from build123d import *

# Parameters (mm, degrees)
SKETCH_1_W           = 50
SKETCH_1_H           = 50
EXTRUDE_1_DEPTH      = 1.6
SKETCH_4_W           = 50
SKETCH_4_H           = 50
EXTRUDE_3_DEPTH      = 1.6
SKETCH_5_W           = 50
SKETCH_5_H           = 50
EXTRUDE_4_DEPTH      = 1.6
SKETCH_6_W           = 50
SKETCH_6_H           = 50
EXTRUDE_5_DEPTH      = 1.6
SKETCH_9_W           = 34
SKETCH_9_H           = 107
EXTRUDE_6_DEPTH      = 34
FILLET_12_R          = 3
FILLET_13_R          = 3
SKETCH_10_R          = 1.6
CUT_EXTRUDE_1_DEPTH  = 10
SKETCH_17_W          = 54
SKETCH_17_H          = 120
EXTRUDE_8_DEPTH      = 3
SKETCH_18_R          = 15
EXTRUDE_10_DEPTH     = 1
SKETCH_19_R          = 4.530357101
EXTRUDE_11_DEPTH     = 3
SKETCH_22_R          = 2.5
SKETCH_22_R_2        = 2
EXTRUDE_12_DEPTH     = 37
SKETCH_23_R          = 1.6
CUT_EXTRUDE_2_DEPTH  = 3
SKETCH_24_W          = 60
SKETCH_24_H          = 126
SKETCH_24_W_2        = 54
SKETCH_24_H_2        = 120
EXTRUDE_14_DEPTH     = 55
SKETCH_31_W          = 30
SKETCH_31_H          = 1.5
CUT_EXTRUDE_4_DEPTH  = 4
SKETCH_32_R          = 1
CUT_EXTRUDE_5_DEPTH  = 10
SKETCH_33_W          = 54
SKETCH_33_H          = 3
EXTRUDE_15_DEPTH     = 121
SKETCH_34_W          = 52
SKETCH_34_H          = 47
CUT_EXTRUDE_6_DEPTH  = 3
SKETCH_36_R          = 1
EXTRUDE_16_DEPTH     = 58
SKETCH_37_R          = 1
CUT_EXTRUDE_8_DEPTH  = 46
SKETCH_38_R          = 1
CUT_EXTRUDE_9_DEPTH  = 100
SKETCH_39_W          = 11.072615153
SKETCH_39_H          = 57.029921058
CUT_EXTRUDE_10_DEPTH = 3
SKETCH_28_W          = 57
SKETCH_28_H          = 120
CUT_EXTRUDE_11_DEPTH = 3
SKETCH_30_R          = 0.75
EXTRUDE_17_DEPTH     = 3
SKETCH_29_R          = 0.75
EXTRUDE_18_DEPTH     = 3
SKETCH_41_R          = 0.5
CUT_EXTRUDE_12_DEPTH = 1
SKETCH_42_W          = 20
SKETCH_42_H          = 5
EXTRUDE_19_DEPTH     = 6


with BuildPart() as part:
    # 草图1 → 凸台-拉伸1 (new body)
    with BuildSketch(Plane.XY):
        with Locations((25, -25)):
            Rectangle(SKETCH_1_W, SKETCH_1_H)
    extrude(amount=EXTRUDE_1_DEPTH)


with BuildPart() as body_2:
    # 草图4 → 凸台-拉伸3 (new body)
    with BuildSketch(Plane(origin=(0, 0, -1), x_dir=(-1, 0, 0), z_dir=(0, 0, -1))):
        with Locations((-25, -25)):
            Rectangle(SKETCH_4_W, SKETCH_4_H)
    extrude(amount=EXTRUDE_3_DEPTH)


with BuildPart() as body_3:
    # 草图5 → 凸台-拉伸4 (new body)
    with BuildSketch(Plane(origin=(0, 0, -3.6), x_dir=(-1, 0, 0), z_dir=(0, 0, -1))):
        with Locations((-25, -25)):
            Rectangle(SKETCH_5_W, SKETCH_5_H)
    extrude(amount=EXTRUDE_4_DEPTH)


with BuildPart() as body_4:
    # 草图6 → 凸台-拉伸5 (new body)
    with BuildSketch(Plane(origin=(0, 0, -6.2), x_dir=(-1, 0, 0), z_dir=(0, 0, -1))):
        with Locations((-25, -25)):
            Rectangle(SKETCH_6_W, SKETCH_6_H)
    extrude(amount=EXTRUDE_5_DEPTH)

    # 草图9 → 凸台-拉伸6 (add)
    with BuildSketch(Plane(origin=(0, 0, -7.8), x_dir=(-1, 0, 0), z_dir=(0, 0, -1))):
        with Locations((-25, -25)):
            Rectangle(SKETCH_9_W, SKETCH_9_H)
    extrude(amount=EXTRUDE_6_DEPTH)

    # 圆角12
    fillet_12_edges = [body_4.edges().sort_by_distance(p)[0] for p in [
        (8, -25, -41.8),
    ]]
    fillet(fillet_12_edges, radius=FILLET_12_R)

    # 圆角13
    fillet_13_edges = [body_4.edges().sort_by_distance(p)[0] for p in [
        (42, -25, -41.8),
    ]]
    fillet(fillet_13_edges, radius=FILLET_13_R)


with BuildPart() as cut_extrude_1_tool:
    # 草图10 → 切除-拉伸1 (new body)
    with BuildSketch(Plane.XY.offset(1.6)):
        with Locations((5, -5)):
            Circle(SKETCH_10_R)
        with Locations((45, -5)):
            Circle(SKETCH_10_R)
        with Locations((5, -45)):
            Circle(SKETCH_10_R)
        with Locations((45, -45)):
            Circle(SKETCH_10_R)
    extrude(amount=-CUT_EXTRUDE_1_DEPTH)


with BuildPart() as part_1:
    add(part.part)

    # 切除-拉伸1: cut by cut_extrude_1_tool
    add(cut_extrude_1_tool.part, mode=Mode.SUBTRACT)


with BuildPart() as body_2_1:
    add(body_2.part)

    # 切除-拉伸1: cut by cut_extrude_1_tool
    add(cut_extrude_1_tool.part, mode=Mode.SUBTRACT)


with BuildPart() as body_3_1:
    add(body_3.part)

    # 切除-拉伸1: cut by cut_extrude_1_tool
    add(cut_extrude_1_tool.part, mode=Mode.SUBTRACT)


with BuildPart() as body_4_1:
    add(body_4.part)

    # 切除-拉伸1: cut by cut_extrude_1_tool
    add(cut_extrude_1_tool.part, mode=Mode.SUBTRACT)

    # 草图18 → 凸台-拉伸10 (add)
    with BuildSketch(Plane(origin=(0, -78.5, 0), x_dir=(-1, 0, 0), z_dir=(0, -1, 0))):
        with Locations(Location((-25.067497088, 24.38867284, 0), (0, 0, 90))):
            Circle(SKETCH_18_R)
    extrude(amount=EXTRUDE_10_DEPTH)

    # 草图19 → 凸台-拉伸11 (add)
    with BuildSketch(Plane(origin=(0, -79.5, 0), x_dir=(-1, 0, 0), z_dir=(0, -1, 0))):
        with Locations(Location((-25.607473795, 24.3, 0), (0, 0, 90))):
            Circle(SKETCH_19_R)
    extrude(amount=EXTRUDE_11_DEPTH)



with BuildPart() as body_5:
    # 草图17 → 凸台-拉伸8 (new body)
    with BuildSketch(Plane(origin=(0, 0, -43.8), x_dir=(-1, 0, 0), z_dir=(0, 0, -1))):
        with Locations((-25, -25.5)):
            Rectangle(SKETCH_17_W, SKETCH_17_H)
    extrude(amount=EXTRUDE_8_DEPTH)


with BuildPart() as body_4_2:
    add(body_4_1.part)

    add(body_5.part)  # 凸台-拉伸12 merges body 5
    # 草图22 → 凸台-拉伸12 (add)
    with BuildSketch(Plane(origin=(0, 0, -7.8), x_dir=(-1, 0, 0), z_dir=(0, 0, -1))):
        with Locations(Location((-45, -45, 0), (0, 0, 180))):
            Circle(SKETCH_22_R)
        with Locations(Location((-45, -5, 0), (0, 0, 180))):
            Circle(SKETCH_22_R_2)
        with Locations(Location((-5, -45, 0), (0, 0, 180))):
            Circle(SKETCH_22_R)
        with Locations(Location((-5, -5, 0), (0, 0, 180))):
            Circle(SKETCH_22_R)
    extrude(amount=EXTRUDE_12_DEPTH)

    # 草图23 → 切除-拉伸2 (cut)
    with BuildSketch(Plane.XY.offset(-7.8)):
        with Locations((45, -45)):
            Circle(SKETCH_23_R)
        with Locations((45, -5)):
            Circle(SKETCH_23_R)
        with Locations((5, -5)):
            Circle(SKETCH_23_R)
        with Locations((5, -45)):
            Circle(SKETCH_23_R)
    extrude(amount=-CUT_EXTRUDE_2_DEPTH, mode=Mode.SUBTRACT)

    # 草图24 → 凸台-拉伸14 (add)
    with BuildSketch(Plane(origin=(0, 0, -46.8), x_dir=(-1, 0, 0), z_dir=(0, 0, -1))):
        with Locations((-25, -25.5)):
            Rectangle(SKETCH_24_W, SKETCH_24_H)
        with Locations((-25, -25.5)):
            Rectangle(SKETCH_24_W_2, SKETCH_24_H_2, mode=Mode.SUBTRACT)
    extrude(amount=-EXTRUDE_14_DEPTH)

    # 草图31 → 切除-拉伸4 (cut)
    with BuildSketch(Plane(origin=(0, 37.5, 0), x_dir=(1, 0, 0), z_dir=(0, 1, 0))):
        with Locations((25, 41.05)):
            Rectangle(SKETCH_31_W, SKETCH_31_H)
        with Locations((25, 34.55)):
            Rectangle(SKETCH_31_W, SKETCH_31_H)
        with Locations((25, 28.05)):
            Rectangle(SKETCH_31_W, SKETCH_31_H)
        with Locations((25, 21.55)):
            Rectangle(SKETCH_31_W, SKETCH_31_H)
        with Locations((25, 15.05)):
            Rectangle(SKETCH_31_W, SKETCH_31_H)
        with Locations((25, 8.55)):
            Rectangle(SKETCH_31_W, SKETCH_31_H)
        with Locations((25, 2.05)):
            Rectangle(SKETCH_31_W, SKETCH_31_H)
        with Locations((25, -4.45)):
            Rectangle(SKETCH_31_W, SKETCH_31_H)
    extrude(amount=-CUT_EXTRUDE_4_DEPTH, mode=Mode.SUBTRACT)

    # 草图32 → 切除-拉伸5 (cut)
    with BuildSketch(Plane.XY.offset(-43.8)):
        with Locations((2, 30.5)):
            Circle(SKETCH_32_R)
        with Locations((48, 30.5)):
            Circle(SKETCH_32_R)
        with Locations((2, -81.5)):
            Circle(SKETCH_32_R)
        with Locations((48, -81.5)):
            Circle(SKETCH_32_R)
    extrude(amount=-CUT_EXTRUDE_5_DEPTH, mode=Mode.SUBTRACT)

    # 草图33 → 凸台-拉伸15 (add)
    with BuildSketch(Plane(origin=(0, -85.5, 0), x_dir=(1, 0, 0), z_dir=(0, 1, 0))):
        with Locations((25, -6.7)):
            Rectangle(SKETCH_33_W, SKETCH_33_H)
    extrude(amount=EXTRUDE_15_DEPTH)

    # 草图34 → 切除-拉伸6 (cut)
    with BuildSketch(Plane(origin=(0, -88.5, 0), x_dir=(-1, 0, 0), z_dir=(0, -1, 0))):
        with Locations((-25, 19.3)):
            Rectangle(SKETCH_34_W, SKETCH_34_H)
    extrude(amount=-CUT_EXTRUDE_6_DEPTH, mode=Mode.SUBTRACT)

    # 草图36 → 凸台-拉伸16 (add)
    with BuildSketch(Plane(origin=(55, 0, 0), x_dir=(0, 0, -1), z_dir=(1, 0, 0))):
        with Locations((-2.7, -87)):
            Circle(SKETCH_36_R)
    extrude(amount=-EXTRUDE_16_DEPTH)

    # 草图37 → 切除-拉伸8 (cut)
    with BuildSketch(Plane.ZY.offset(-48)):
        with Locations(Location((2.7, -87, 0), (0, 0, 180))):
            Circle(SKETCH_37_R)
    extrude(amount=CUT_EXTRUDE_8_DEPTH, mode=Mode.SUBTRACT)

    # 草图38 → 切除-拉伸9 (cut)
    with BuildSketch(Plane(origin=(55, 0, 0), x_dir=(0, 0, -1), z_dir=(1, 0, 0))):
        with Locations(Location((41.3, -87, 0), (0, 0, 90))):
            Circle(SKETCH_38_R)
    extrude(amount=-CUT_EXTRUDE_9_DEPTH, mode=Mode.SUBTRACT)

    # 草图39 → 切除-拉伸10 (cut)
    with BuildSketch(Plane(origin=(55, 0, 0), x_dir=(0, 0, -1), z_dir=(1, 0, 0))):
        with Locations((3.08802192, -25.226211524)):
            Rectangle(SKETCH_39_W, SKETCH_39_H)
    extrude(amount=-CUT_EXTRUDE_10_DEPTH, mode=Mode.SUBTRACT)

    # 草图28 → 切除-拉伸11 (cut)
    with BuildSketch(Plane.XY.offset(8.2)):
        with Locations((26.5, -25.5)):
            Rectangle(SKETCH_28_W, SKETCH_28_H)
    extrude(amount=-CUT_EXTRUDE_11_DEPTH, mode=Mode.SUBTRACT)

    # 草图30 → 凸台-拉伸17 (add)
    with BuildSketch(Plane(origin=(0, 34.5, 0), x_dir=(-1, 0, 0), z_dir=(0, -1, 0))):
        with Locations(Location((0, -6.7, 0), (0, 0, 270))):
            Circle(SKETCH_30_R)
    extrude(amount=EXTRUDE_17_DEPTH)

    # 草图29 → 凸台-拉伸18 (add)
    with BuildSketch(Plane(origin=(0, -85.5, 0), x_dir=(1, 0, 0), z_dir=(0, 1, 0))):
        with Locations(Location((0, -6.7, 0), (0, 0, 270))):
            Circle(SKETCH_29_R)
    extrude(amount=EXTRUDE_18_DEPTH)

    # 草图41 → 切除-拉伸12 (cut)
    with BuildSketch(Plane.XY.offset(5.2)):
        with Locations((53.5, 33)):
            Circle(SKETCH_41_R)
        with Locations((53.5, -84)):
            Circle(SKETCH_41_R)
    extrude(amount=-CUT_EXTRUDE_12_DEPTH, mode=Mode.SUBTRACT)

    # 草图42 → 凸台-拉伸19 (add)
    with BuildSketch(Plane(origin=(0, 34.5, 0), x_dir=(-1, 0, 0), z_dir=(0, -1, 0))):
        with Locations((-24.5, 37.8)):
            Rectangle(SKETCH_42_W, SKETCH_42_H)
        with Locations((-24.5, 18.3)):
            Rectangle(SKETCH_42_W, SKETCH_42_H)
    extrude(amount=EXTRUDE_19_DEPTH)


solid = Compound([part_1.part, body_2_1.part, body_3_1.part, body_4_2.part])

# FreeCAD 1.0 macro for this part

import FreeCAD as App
import Part
import Sketcher

V = App.Vector
Q = App.Units.Quantity


def edges_at(feature, points):
    """Names of the edges that pass closest to the given points."""
    edges = feature.Shape.Edges
    near = lambda p: min(range(len(edges)), key=lambda i: edges[i].distToShape(Part.Vertex(*p))[0])
    return sorted({f"Edge{near(p) + 1}" for p in points})

doc = App.newDocument("Part")
body = doc.addObject("PartDesign::Body", "Body")

# Sketch on XY plane
sketch1 = body.newObject("Sketcher::SketchObject", "Sketch")
sketch1.AttachmentSupport = (doc.getObject("XY_Plane"), [""])
sketch1.MapMode = "FlatFace"
sketch1.addGeometry([
    Part.LineSegment(V(0, 0, 0), V(0, -50, 0)),
    Part.LineSegment(V(0, -50, 0), V(50, -50, 0)),
    Part.LineSegment(V(50, -50, 0), V(50, 0, 0)),
    Part.LineSegment(V(50, 0, 0), V(0, 0, 0)),
], False)
sketch1.addConstraint([
    Sketcher.Constraint("Coincident", 0, 2, 1, 1),
    Sketcher.Constraint("Coincident", 1, 2, 2, 1),
    Sketcher.Constraint("Coincident", 2, 2, 3, 1),
    Sketcher.Constraint("Coincident", 3, 2, 0, 1),
    Sketcher.Constraint("Vertical", 0),
    Sketcher.Constraint("Horizontal", 1),
    Sketcher.Constraint("Vertical", 2),
    Sketcher.Constraint("Horizontal", 3),
    Sketcher.Constraint("Coincident", 3, 2, -1, 1),
    Sketcher.Constraint("Equal", 3, 0),
    Sketcher.Constraint("DistanceX", 1, 1, 1, 2, Q("50 mm")),
])
pad1 = body.newObject("PartDesign::Pad", "Pad")
pad1.Profile = sketch1
pad1.Length = 1.6
body2 = doc.addObject("PartDesign::Body", "Body001")

# Sketch on XY plane
sketch2 = body2.newObject("Sketcher::SketchObject", "Sketch001")
sketch2.AttachmentSupport = (doc.getObject("XY_Plane001"), [""])
sketch2.MapMode = "FlatFace"
sketch2.AttachmentOffset = App.Placement(V(0, 0, -1), App.Rotation())
sketch2.addGeometry([
    Part.LineSegment(V(50, 0, 0), V(50, -50, 0)),
    Part.LineSegment(V(50, -50, 0), V(0, -50, 0)),
    Part.LineSegment(V(0, -50, 0), V(0, 0, 0)),
    Part.LineSegment(V(0, 0, 0), V(50, 0, 0)),
], False)
sketch2.addConstraint([
    Sketcher.Constraint("Coincident", 0, 2, 1, 1),
    Sketcher.Constraint("Coincident", 1, 2, 2, 1),
    Sketcher.Constraint("Coincident", 2, 2, 3, 1),
    Sketcher.Constraint("Coincident", 3, 2, 0, 1),
    Sketcher.Constraint("Vertical", 0),
    Sketcher.Constraint("Horizontal", 1),
    Sketcher.Constraint("Vertical", 2),
    Sketcher.Constraint("Horizontal", 3),
    Sketcher.Constraint("Coincident", 2, 2, -1, 1),
    Sketcher.Constraint("Equal", 3, 0),
    Sketcher.Constraint("DistanceX", 1, 2, 1, 1, Q("50 mm")),
])
pad2 = body2.newObject("PartDesign::Pad", "Pad001")
pad2.Profile = sketch2
pad2.Length = 1.6
pad2.Reversed = True
body3 = doc.addObject("PartDesign::Body", "Body002")

# Sketch on XY plane
sketch3 = body3.newObject("Sketcher::SketchObject", "Sketch002")
sketch3.AttachmentSupport = (doc.getObject("XY_Plane002"), [""])
sketch3.MapMode = "FlatFace"
sketch3.AttachmentOffset = App.Placement(V(0, 0, -3.6), App.Rotation())
sketch3.addGeometry([
    Part.LineSegment(V(50, 0, 0), V(50, -50, 0)),
    Part.LineSegment(V(50, -50, 0), V(0, -50, 0)),
    Part.LineSegment(V(0, -50, 0), V(0, 0, 0)),
    Part.LineSegment(V(0, 0, 0), V(50, 0, 0)),
], False)
sketch3.addConstraint([
    Sketcher.Constraint("Coincident", 0, 2, 1, 1),
    Sketcher.Constraint("Coincident", 1, 2, 2, 1),
    Sketcher.Constraint("Coincident", 2, 2, 3, 1),
    Sketcher.Constraint("Coincident", 3, 2, 0, 1),
    Sketcher.Constraint("Vertical", 0),
    Sketcher.Constraint("Horizontal", 1),
    Sketcher.Constraint("Vertical", 2),
    Sketcher.Constraint("Horizontal", 3),
    Sketcher.Constraint("Coincident", 2, 2, -1, 1),
    Sketcher.Constraint("Equal", 3, 0),
    Sketcher.Constraint("DistanceX", 1, 2, 1, 1, Q("50 mm")),
])
pad3 = body3.newObject("PartDesign::Pad", "Pad002")
pad3.Profile = sketch3
pad3.Length = 1.6
pad3.Reversed = True
body4 = doc.addObject("PartDesign::Body", "Body003")

# Sketch on XY plane
sketch4 = body4.newObject("Sketcher::SketchObject", "Sketch003")
sketch4.AttachmentSupport = (doc.getObject("XY_Plane003"), [""])
sketch4.MapMode = "FlatFace"
sketch4.AttachmentOffset = App.Placement(V(0, 0, -6.2), App.Rotation())
sketch4.addGeometry([
    Part.LineSegment(V(50, 0, 0), V(50, -50, 0)),
    Part.LineSegment(V(50, -50, 0), V(0, -50, 0)),
    Part.LineSegment(V(0, -50, 0), V(0, 0, 0)),
    Part.LineSegment(V(0, 0, 0), V(50, 0, 0)),
], False)
sketch4.addConstraint([
    Sketcher.Constraint("Coincident", 0, 2, 1, 1),
    Sketcher.Constraint("Coincident", 1, 2, 2, 1),
    Sketcher.Constraint("Coincident", 2, 2, 3, 1),
    Sketcher.Constraint("Coincident", 3, 2, 0, 1),
    Sketcher.Constraint("Vertical", 0),
    Sketcher.Constraint("Horizontal", 1),
    Sketcher.Constraint("Vertical", 2),
    Sketcher.Constraint("Horizontal", 3),
    Sketcher.Constraint("Coincident", 2, 2, -1, 1),
    Sketcher.Constraint("Equal", 3, 0),
    Sketcher.Constraint("DistanceX", 1, 2, 1, 1, Q("50 mm")),
])
pad4 = body4.newObject("PartDesign::Pad", "Pad003")
pad4.Profile = sketch4
pad4.Length = 1.6
pad4.Reversed = True

# Sketch on XY plane
sketch5 = body4.newObject("Sketcher::SketchObject", "Sketch004")
sketch5.AttachmentSupport = (doc.getObject("XY_Plane003"), [""])
sketch5.MapMode = "FlatFace"
sketch5.AttachmentOffset = App.Placement(V(0, 0, -7.8), App.Rotation())
sketch5.addGeometry([
    Part.LineSegment(V(42, 28, 0), V(42, -78, 0)),
    Part.LineSegment(V(42, -78, 0), V(8, -78, 0)),
    Part.LineSegment(V(8, -78, 0), V(8, 28, 0)),
    Part.LineSegment(V(8, 28, 0), V(42, 28, 0)),
], False)
sketch5.addConstraint([
    Sketcher.Constraint("Coincident", 0, 2, 1, 1),
    Sketcher.Constraint("Coincident", 1, 2, 2, 1),
    Sketcher.Constraint("Coincident", 2, 2, 3, 1),
    Sketcher.Constraint("Coincident", 3, 2, 0, 1),
    Sketcher.Constraint("Vertical", 0),
    Sketcher.Constraint("Horizontal", 1),
    Sketcher.Constraint("Vertical", 2),
    Sketcher.Constraint("Horizontal", 3),
    Sketcher.Constraint("DistanceX", 1, 2, 1, 1, Q("34 mm")),
    Sketcher.Constraint("DistanceY", 0, 2, 0, 1, Q("107 mm")),
    Sketcher.Constraint("DistanceX", -1, 1, 0, 2, Q("42 mm")),
    Sketcher.Constraint("DistanceY", 0, 2, -1, 1, Q("78.5 mm")),
])
pad5 = body4.newObject("PartDesign::Pad", "Pad004")
pad5.Profile = sketch5
pad5.Length = 34
pad5.Reversed = True
doc.recompute()

fillet = body4.newObject("PartDesign::Fillet", "Fillet")
fillet.Base = (pad5, edges_at(pad5, [(8, -25, -41.8)]))
fillet.Radius = 3
doc.recompute()

fillet2 = body4.newObject("PartDesign::Fillet", "Fillet001")
fillet2.Base = (fillet, edges_at(fillet, [(42, -25, -41.8)]))
fillet2.Radius = 3
body5 = doc.addObject("PartDesign::Body", "Body004")
body5.AllowCompound = True

# Sketch on XY plane
sketch6 = body5.newObject("Sketcher::SketchObject", "Sketch005")
sketch6.AttachmentSupport = (doc.getObject("XY_Plane004"), [""])
sketch6.MapMode = "FlatFace"
sketch6.AttachmentOffset = App.Placement(V(0, 0, 1.6), App.Rotation())
sketch6.addGeometry([
    Part.Circle(V(5, -5, 0), V(0, 0, 1), 1.6),
    Part.Circle(V(45, -5, 0), V(0, 0, 1), 1.6),
    Part.Circle(V(5, -45, 0), V(0, 0, 1), 1.6),
    Part.Circle(V(45, -45, 0), V(0, 0, 1), 1.6),
], False)
sketch6.addConstraint([
    Sketcher.Constraint("Equal", 0, 1),
    Sketcher.Constraint("Equal", 1, 2),
    Sketcher.Constraint("Equal", 2, 3),
    Sketcher.Constraint("Horizontal", 0, 3, 1, 3),
    Sketcher.Constraint("Horizontal", 2, 3, 3, 3),
    Sketcher.Constraint("Vertical", 0, 3, 2, 3),
    Sketcher.Constraint("Vertical", 1, 3, 3, 3),
    Sketcher.Constraint("Diameter", 0, Q("3.2 mm")),
    Sketcher.Constraint("DistanceX", -1, 1, 0, 3, Q("5 mm")),
    Sketcher.Constraint("DistanceY", 0, 3, -1, 1, Q("5 mm")),
    Sketcher.Constraint("DistanceX", -1, 1, 1, 3, Q("45 mm")),
    Sketcher.Constraint("DistanceY", 2, 3, -1, 1, Q("45 mm")),
])
pad6 = body5.newObject("PartDesign::Pad", "Pad005")
pad6.Profile = sketch6
pad6.Length = 10
pad6.Reversed = True
doc.recompute()

body6 = doc.addObject("PartDesign::Body", "Body005")
body6.BaseFeature = body5
boolean = body.newObject("PartDesign::Boolean", "Boolean")
boolean.Type = "Cut"
boolean.addObjects([body6])
doc.recompute()

body7 = doc.addObject("PartDesign::Body", "Body006")
body7.BaseFeature = body5
boolean2 = body2.newObject("PartDesign::Boolean", "Boolean001")
boolean2.Type = "Cut"
boolean2.addObjects([body7])
doc.recompute()

body8 = doc.addObject("PartDesign::Body", "Body007")
body8.BaseFeature = body5
boolean3 = body3.newObject("PartDesign::Boolean", "Boolean002")
boolean3.Type = "Cut"
boolean3.addObjects([body8])
doc.recompute()

boolean4 = body4.newObject("PartDesign::Boolean", "Boolean003")
boolean4.Type = "Cut"
boolean4.addObjects([body5])

# Sketch on XZ plane
sketch7 = body4.newObject("Sketcher::SketchObject", "Sketch006")
sketch7.AttachmentSupport = (doc.getObject("XZ_Plane003"), [""])
sketch7.MapMode = "FlatFace"
sketch7.AttachmentOffset = App.Placement(V(0, 0, 78.5), App.Rotation())
sketch7.addGeometry(Part.Circle(V(25, -24, 0), V(0, 0, 1), 15), False)
sketch7.addConstraint([
    Sketcher.Constraint("Diameter", 0, Q("30 mm")),
    Sketcher.Constraint("DistanceX", -1, 1, 0, 3, Q("25.067497 mm")),
    Sketcher.Constraint("DistanceY", 0, 3, -1, 1, Q("24.388673 mm")),
])
pad7 = body4.newObject("PartDesign::Pad", "Pad006")
pad7.Profile = sketch7
pad7.Length = 1

# Sketch on XZ plane
sketch8 = body4.newObject("Sketcher::SketchObject", "Sketch007")
sketch8.AttachmentSupport = (doc.getObject("XZ_Plane003"), [""])
sketch8.MapMode = "FlatFace"
sketch8.AttachmentOffset = App.Placement(V(0, 0, 79.5), App.Rotation())
sketch8.addGeometry(Part.Circle(V(25.6, -24.3, 0), V(0, 0, 1), 4.5), False)
sketch8.addConstraint([
    Sketcher.Constraint("DistanceY", 0, 3, -1, 1, Q("24.3 mm")),
    Sketcher.Constraint("Diameter", 0, Q("9.060714 mm")),
    Sketcher.Constraint("DistanceX", -1, 1, 0, 3, Q("25.607474 mm")),
])
pad8 = body4.newObject("PartDesign::Pad", "Pad007")
pad8.Profile = sketch8
pad8.Length = 3
body9 = doc.addObject("PartDesign::Body", "Body008")

# Sketch on XY plane
sketch9 = body9.newObject("Sketcher::SketchObject", "Sketch008")
sketch9.AttachmentSupport = (doc.getObject("XY_Plane008"), [""])
sketch9.MapMode = "FlatFace"
sketch9.AttachmentOffset = App.Placement(V(0, 0, -43.8), App.Rotation())
sketch9.addGeometry([
    Part.LineSegment(V(52, 34, 0), V(52, -86, 0)),
    Part.LineSegment(V(52, -86, 0), V(-2, -86, 0)),
    Part.LineSegment(V(-2, -86, 0), V(-2, 34, 0)),
    Part.LineSegment(V(-2, 34, 0), V(52, 34, 0)),
], False)
sketch9.addConstraint([
    Sketcher.Constraint("Coincident", 0, 2, 1, 1),
    Sketcher.Constraint("Coincident", 1, 2, 2, 1),
    Sketcher.Constraint("Coincident", 2, 2, 3, 1),
    Sketcher.Constraint("Coincident", 3, 2, 0, 1),
    Sketcher.Constraint("Vertical", 0),
    Sketcher.Constraint("Horizontal", 1),
    Sketcher.Constraint("Vertical", 2),
    Sketcher.Constraint("Horizontal", 3),
    Sketcher.Constraint("DistanceX", 1, 2, 1, 1, Q("54 mm")),
    Sketcher.Constraint("DistanceY", 0, 2, 0, 1, Q("120 mm")),
    Sketcher.Constraint("DistanceX", -1, 1, 0, 2, Q("52 mm")),
    Sketcher.Constraint("DistanceY", 0, 2, -1, 1, Q("85.5 mm")),
])
pad9 = body9.newObject("PartDesign::Pad", "Pad008")
pad9.Profile = sketch9
pad9.Length = 3
pad9.Reversed = True
body4.AllowCompound = True
doc.recompute()

boolean5 = body4.newObject("PartDesign::Boolean", "Boolean004")
boolean5.Type = "Fuse"
boolean5.addObjects([body9])

# Sketch on XY plane
sketch10 = body4.newObject("Sketcher::SketchObject", "Sketch009")
sketch10.AttachmentSupport = (doc.getObject("XY_Plane003"), [""])
sketch10.MapMode = "FlatFace"
sketch10.AttachmentOffset = App.Placement(V(0, 0, -7.8), App.Rotation())
sketch10.addGeometry([
    Part.Circle(V(45, -45, 0), V(0, 0, 1), 2.5),
    Part.Circle(V(45, -5, 0), V(0, 0, 1), 2),
    Part.Circle(V(5, -45, 0), V(0, 0, 1), 2.5),
    Part.Circle(V(5, -5, 0), V(0, 0, 1), 2.5),
], False)
sketch10.addConstraint([
    Sketcher.Constraint("Equal", 0, 2),
    Sketcher.Constraint("Equal", 2, 3),
    Sketcher.Constraint("Horizontal", 0, 3, 2, 3),
    Sketcher.Constraint("Horizontal", 1, 3, 3, 3),
    Sketcher.Constraint("Vertical", 0, 3, 1, 3),
    Sketcher.Constraint("Vertical", 2, 3, 3, 3),
    Sketcher.Constraint("Diameter", 0, Q("5 mm")),
    Sketcher.Constraint("Diameter", 1, Q("4 mm")),
    Sketcher.Constraint("DistanceX", -1, 1, 0, 3, Q("45 mm")),
    Sketcher.Constraint("DistanceY", 0, 3, -1, 1, Q("45 mm")),
    Sketcher.Constraint("DistanceY", 1, 3, -1, 1, Q("5 mm")),
    Sketcher.Constraint("DistanceX", -1, 1, 2, 3, Q("5 mm")),
])
pad10 = body4.newObject("PartDesign::Pad", "Pad009")
pad10.Profile = sketch10
pad10.Length = 37
pad10.Reversed = True

# Sketch on XY plane
sketch11 = body4.newObject("Sketcher::SketchObject", "Sketch010")
sketch11.AttachmentSupport = (doc.getObject("XY_Plane003"), [""])
sketch11.MapMode = "FlatFace"
sketch11.AttachmentOffset = App.Placement(V(0, 0, -7.8), App.Rotation())
sketch11.addGeometry([
    Part.Circle(V(45, -45, 0), V(0, 0, 1), 1.6),
    Part.Circle(V(45, -5, 0), V(0, 0, 1), 1.6),
    Part.Circle(V(5, -5, 0), V(0, 0, 1), 1.6),
    Part.Circle(V(5, -45, 0), V(0, 0, 1), 1.6),
], False)
sketch11.addConstraint([
    Sketcher.Constraint("Equal", 0, 1),
    Sketcher.Constraint("Equal", 1, 2),
    Sketcher.Constraint("Equal", 2, 3),
    Sketcher.Constraint("Horizontal", 1, 3, 2, 3),
    Sketcher.Constraint("Horizontal", 0, 3, 3, 3),
    Sketcher.Constraint("Vertical", 0, 3, 1, 3),
    Sketcher.Constraint("Vertical", 2, 3, 3, 3),
    Sketcher.Constraint("Diameter", 0, Q("3.2 mm")),
    Sketcher.Constraint("DistanceX", -1, 1, 0, 3, Q("45 mm")),
    Sketcher.Constraint("DistanceY", 0, 3, -1, 1, Q("45 mm")),
    Sketcher.Constraint("DistanceY", 1, 3, -1, 1, Q("5 mm")),
    Sketcher.Constraint("DistanceX", -1, 1, 2, 3, Q("5 mm")),
])
pocket1 = body4.newObject("PartDesign::Pocket", "Pocket")
pocket1.Profile = sketch11
pocket1.Length = 3

# Sketch on XY plane
sketch12 = body4.newObject("Sketcher::SketchObject", "Sketch011")
sketch12.AttachmentSupport = (doc.getObject("XY_Plane003"), [""])
sketch12.MapMode = "FlatFace"
sketch12.AttachmentOffset = App.Placement(V(0, 0, -46.8), App.Rotation())
sketch12.addGeometry([
    Part.LineSegment(V(55, 38, 0), V(55, -88, 0)),  # 0
    Part.LineSegment(V(55, -88, 0), V(-5, -88, 0)),  # 1
    Part.LineSegment(V(-5, -88, 0), V(-5, 38, 0)),  # 2
    Part.LineSegment(V(-5, 38, 0), V(55, 38, 0)),  # 3
    Part.LineSegment(V(-2, -86, 0), V(52, -86, 0)),  # 4
    Part.LineSegment(V(52, -86, 0), V(52, 34, 0)),  # 5
    Part.LineSegment(V(52, 34, 0), V(-2, 34, 0)),  # 6
    Part.LineSegment(V(-2, 34, 0), V(-2, -86, 0)),  # 7
], False)
sketch12.addConstraint([
    Sketcher.Constraint("Coincident", 0, 2, 1, 1),
    Sketcher.Constraint("Coincident", 1, 2, 2, 1),
    Sketcher.Constraint("Coincident", 2, 2, 3, 1),
    Sketcher.Constraint("Coincident", 3, 2, 0, 1),
    Sketcher.Constraint("Coincident", 4, 2, 5, 1),
    Sketcher.Constraint("Coincident", 5, 2, 6, 1),
    Sketcher.Constraint("Coincident", 6, 2, 7, 1),
    Sketcher.Constraint("Coincident", 7, 2, 4, 1),
    Sketcher.Constraint("Vertical", 0),
    Sketcher.Constraint("Horizontal", 1),
    Sketcher.Constraint("Vertical", 2),
    Sketcher.Constraint("Horizontal", 3),
    Sketcher.Constraint("Horizontal", 4),
    Sketcher.Constraint("Vertical", 5),
    Sketcher.Constraint("Horizontal", 6),
    Sketcher.Constraint("Vertical", 7),
    Sketcher.Constraint("DistanceX", 1, 2, 1, 1, Q("60 mm")),
    Sketcher.Constraint("DistanceX", 4, 1, 4, 2, Q("54 mm")),
    Sketcher.Constraint("DistanceY", 0, 2, 0, 1, Q("126 mm")),
    Sketcher.Constraint("DistanceY", 5, 1, 5, 2, Q("120 mm")),
    Sketcher.Constraint("DistanceX", -1, 1, 0, 2, Q("55 mm")),
    Sketcher.Constraint("DistanceX", -1, 1, 4, 2, Q("52 mm")),
    Sketcher.Constraint("DistanceY", 0, 2, 4, 2, Q("3 mm")),
    Sketcher.Constraint("DistanceY", 0, 2, -1, 1, Q("88.5 mm")),
])
pad11 = body4.newObject("PartDesign::Pad", "Pad010")
pad11.Profile = sketch12
pad11.Length = 55

# Sketch on XZ plane
sketch13 = body4.newObject("Sketcher::SketchObject", "Sketch012")
sketch13.AttachmentSupport = (doc.getObject("XZ_Plane003"), [""])
sketch13.MapMode = "FlatFace"
sketch13.AttachmentOffset = App.Placement(V(0, 0, -37.5), App.Rotation())
sketch13.addGeometry([
    Part.LineSegment(V(10, -41.8, 0), V(10, -40.3, 0)),  # 0
    Part.LineSegment(V(10, -40.3, 0), V(40, -40.3, 0)),  # 1
    Part.LineSegment(V(40, -40.3, 0), V(40, -41.8, 0)),  # 2
    Part.LineSegment(V(40, -41.8, 0), V(10, -41.8, 0)),  # 3
    Part.LineSegment(V(10, -35.3, 0), V(10, -33.8, 0)),  # 4
    Part.LineSegment(V(10, -33.8, 0), V(40, -33.8, 0)),  # 5
    Part.LineSegment(V(40, -33.8, 0), V(40, -35.3, 0)),  # 6
    Part.LineSegment(V(40, -35.3, 0), V(10, -35.3, 0)),  # 7
    Part.LineSegment(V(10, -28.8, 0), V(10, -27.3, 0)),  # 8
    Part.LineSegment(V(10, -27.3, 0), V(40, -27.3, 0)),  # 9
    Part.LineSegment(V(40, -27.3, 0), V(40, -28.8, 0)),  # 10
    Part.LineSegment(V(40, -28.8, 0), V(10, -28.8, 0)),  # 11
    Part.LineSegment(V(10, -22.3, 0), V(10, -20.8, 0)),  # 12
    Part.LineSegment(V(10, -20.8, 0), V(40, -20.8, 0)),  # 13
    Part.LineSegment(V(40, -20.8, 0), V(40, -22.3, 0)),  # 14
    Part.LineSegment(V(40, -22.3, 0), V(10, -22.3, 0)),  # 15
    Part.LineSegment(V(10, -15.8, 0), V(10, -14.3, 0)),  # 16
    Part.LineSegment(V(10, -14.3, 0), V(40, -14.3, 0)),  # 17
    Part.LineSegment(V(40, -14.3, 0), V(40, -15.8, 0)),  # 18
    Part.LineSegment(V(40, -15.8, 0), V(10, -15.8, 0)),  # 19
    Part.LineSegment(V(10, -9.3, 0), V(10, -7.8, 0)),  # 20
    Part.LineSegment(V(10, -7.8, 0), V(40, -7.8, 0)),  # 21
    Part.LineSegment(V(40, -7.8, 0), V(40, -9.3, 0)),  # 22
    Part.LineSegment(V(40, -9.3, 0), V(10, -9.3, 0)),  # 23
    Part.LineSegment(V(10, -2.8, 0), V(10, -1.3, 0)),  # 24
    Part.LineSegment(V(10, -1.3, 0), V(40, -1.3, 0)),  # 25
    Part.LineSegment(V(40, -1.3, 0), V(40, -2.8, 0)),  # 26
    Part.LineSegment(V(40, -2.8, 0), V(10, -2.8, 0)),  # 27
    Part.LineSegment(V(10, 3.7, 0), V(10, 5.2, 0)),  # 28
    Part.LineSegment(V(10, 5.2, 0), V(40, 5.2, 0)),  # 29
    Part.LineSegment(V(40, 5.2, 0), V(40, 3.7, 0)),  # 30
    Part.LineSegment(V(40, 3.7, 0), V(10, 3.7, 0)),  # 31
], False)
sketch13.addConstraint([
    Sketcher.Constraint("Coincident", 0, 2, 1, 1),
    Sketcher.Constraint("Coincident", 1, 2, 2, 1),
    Sketcher.Constraint("Coincident", 2, 2, 3, 1),
    Sketcher.Constraint("Coincident", 3, 2, 0, 1),
    Sketcher.Constraint("Coincident", 4, 2, 5, 1),
    Sketcher.Constraint("Coincident", 5, 2, 6, 1),
    Sketcher.Constraint("Coincident", 6, 2, 7, 1),
    Sketcher.Constraint("Coincident", 7, 2, 4, 1),
    Sketcher.Constraint("Coincident", 8, 2, 9, 1),
    Sketcher.Constraint("Coincident", 9, 2, 10, 1),
    Sketcher.Constraint("Coincident", 10, 2, 11, 1),
    Sketcher.Constraint("Coincident", 11, 2, 8, 1),
    Sketcher.Constraint("Coincident", 12, 2, 13, 1),
    Sketcher.Constraint("Coincident", 13, 2, 14, 1),
    Sketcher.Constraint("Coincident", 14, 2, 15, 1),
    Sketcher.Constraint("Coincident", 15, 2, 12, 1),
    Sketcher.Constraint("Coincident", 16, 2, 17, 1),
    Sketcher.Constraint("Coincident", 17, 2, 18, 1),
    Sketcher.Constraint("Coincident", 18, 2, 19, 1),
    Sketcher.Constraint("Coincident", 19, 2, 16, 1),
    Sketcher.Constraint("Coincident", 20, 2, 21, 1),
    Sketcher.Constraint("Coincident", 21, 2, 22, 1),
    Sketcher.Constraint("Coincident", 22, 2, 23, 1),
    Sketcher.Constraint("Coincident", 23, 2, 20, 1),
    Sketcher.Constraint("Coincident", 24, 2, 25, 1),
    Sketcher.Constraint("Coincident", 25, 2, 26, 1),
    Sketcher.Constraint("Coincident", 26, 2, 27, 1),
    Sketcher.Constraint("Coincident", 27, 2, 24, 1),
    Sketcher.Constraint("Coincident", 28, 2, 29, 1),
    Sketcher.Constraint("Coincident", 29, 2, 30, 1),
    Sketcher.Constraint("Coincident", 30, 2, 31, 1),
    Sketcher.Constraint("Coincident", 31, 2, 28, 1),
    Sketcher.Constraint("Vertical", 0),
    Sketcher.Constraint("Horizontal", 1),
    Sketcher.Constraint("Vertical", 2),
    Sketcher.Constraint("Horizontal", 3),
    Sketcher.Constraint("Vertical", 4),
    Sketcher.Constraint("Horizontal", 5),
    Sketcher.Constraint("Vertical", 6),
    Sketcher.Constraint("Horizontal", 7),
    Sketcher.Constraint("Vertical", 8),
    Sketcher.Constraint("Horizontal", 9),
    Sketcher.Constraint("Vertical", 10),
    Sketcher.Constraint("Horizontal", 11),
    Sketcher.Constraint("Vertical", 12),
    Sketcher.Constraint("Horizontal", 13),
    Sketcher.Constraint("Vertical", 14),
    Sketcher.Constraint("Horizontal", 15),
    Sketcher.Constraint("Vertical", 16),
    Sketcher.Constraint("Horizontal", 17),
    Sketcher.Constraint("Vertical", 18),
    Sketcher.Constraint("Horizontal", 19),
    Sketcher.Constraint("Vertical", 20),
    Sketcher.Constraint("Horizontal", 21),
    Sketcher.Constraint("Vertical", 22),
    Sketcher.Constraint("Horizontal", 23),
    Sketcher.Constraint("Vertical", 24),
    Sketcher.Constraint("Horizontal", 25),
    Sketcher.Constraint("Vertical", 26),
    Sketcher.Constraint("Horizontal", 27),
    Sketcher.Constraint("Vertical", 28),
    Sketcher.Constraint("Horizontal", 29),
    Sketcher.Constraint("Vertical", 30),
    Sketcher.Constraint("Horizontal", 31),
    Sketcher.Constraint("Vertical", 3, 2, 4, 2),
    Sketcher.Constraint("Vertical", 2, 2, 5, 2),
    Sketcher.Constraint("Vertical", 7, 2, 8, 2),
    Sketcher.Constraint("Vertical", 6, 2, 9, 2),
    Sketcher.Constraint("Vertical", 11, 2, 12, 2),
    Sketcher.Constraint("Vertical", 10, 2, 13, 2),
    Sketcher.Constraint("Vertical", 15, 2, 16, 2),
    Sketcher.Constraint("Vertical", 14, 2, 17, 2),
    Sketcher.Constraint("Vertical", 19, 2, 20, 2),
    Sketcher.Constraint("Vertical", 18, 2, 21, 2),
    Sketcher.Constraint("Vertical", 23, 2, 24, 2),
    Sketcher.Constraint("Vertical", 22, 2, 25, 2),
    Sketcher.Constraint("Vertical", 27, 2, 28, 2),
    Sketcher.Constraint("Vertical", 26, 2, 29, 2),
    Sketcher.Constraint("Equal", 2, 4),
    Sketcher.Constraint("Equal", 6, 8),
    Sketcher.Constraint("Equal", 10, 12),
    Sketcher.Constraint("Equal", 14, 16),
    Sketcher.Constraint("Equal", 18, 20),
    Sketcher.Constraint("Equal", 22, 24),
    Sketcher.Constraint("Equal", 26, 28),
    Sketcher.Constraint("DistanceX", 1, 1, 1, 2, Q("30 mm")),
    Sketcher.Constraint("DistanceY", 0, 1, 0, 2, Q("1.5 mm")),
    Sketcher.Constraint("DistanceX", -1, 1, 0, 2, Q("10 mm")),
    Sketcher.Constraint("DistanceY", 3, 2, 4, 2, Q("8 mm")),
    Sketcher.Constraint("DistanceY", 7, 2, 8, 2, Q("8 mm")),
    Sketcher.Constraint("DistanceY", 11, 2, 12, 2, Q("8 mm")),
    Sketcher.Constraint("DistanceY", 15, 2, 16, 2, Q("8 mm")),
    Sketcher.Constraint("DistanceY", 19, 2, 20, 2, Q("8 mm")),
    Sketcher.Constraint("DistanceY", 23, 2, 24, 2, Q("8 mm")),
    Sketcher.Constraint("DistanceY", 27, 2, 28, 2, Q("8 mm")),
    Sketcher.Constraint("DistanceY", 0, 2, -1, 1, Q("40.3 mm")),
])
pocket2 = body4.newObject("PartDesign::Pocket", "Pocket001")
pocket2.Profile = sketch13
pocket2.Length = 4
pocket2.Reversed = True

# Sketch on XY plane
sketch14 = body4.newObject("Sketcher::SketchObject", "Sketch013")
sketch14.AttachmentSupport = (doc.getObject("XY_Plane003"), [""])
sketch14.MapMode = "FlatFace"
sketch14.AttachmentOffset = App.Placement(V(0, 0, -43.8), App.Rotation())
sketch14.addGeometry([
    Part.Circle(V(2, 30.5, 0), V(0, 0, 1), 1),
    Part.Circle(V(48, 30.5, 0), V(0, 0, 1), 1),
    Part.Circle(V(2, -81.5, 0), V(0, 0, 1), 1),
    Part.Circle(V(48, -81.5, 0), V(0, 0, 1), 1),
], False)
sketch14.addConstraint([
    Sketcher.Constraint("Equal", 0, 1),
    Sketcher.Constraint("Equal", 1, 2),
    Sketcher.Constraint("Equal", 2, 3),
    Sketcher.Constraint("Horizontal", 0, 3, 1, 3),
    Sketcher.Constraint("Horizontal", 2, 3, 3, 3),
    Sketcher.Constraint("Vertical", 0, 3, 2, 3),
    Sketcher.Constraint("Vertical", 1, 3, 3, 3),
    Sketcher.Constraint("Diameter", 0, Q("2 mm")),
    Sketcher.Constraint("DistanceX", -1, 1, 0, 3, Q("2 mm")),
    Sketcher.Constraint("DistanceX", -1, 1, 1, 3, Q("48 mm")),
    Sketcher.Constraint("DistanceY", 2, 3, 0, 3, Q("112 mm")),
    Sketcher.Constraint("DistanceY", -1, 1, 0, 3, Q("30.5 mm")),
])
pocket3 = body4.newObject("PartDesign::Pocket", "Pocket002")
pocket3.Profile = sketch14
pocket3.Length = 10

# Sketch on XZ plane
sketch15 = body4.newObject("Sketcher::SketchObject", "Sketch014")
sketch15.AttachmentSupport = (doc.getObject("XZ_Plane003"), [""])
sketch15.MapMode = "FlatFace"
sketch15.AttachmentOffset = App.Placement(V(0, 0, 85.5), App.Rotation())
sketch15.addGeometry([
    Part.LineSegment(V(-2, 5.2, 0), V(-2, 8.2, 0)),
    Part.LineSegment(V(-2, 8.2, 0), V(52, 8.2, 0)),
    Part.LineSegment(V(52, 8.2, 0), V(52, 5.2, 0)),
    Part.LineSegment(V(52, 5.2, 0), V(-2, 5.2, 0)),
], False)
sketch15.addConstraint([
    Sketcher.Constraint("Coincident", 0, 2, 1, 1),
    Sketcher.Constraint("Coincident", 1, 2, 2, 1),
    Sketcher.Constraint("Coincident", 2, 2, 3, 1),
    Sketcher.Constraint("Coincident", 3, 2, 0, 1),
    Sketcher.Constraint("Vertical", 0),
    Sketcher.Constraint("Horizontal", 1),
    Sketcher.Constraint("Vertical", 2),
    Sketcher.Constraint("Horizontal", 3),
    Sketcher.Constraint("DistanceX", 1, 1, 1, 2, Q("54 mm")),
    Sketcher.Constraint("DistanceY", 0, 1, 0, 2, Q("3 mm")),
    Sketcher.Constraint("DistanceX", 0, 2, -1, 1, Q("2 mm")),
    Sketcher.Constraint("DistanceY", -1, 1, 0, 2, Q("8.2 mm")),
])
pad12 = body4.newObject("PartDesign::Pad", "Pad011")
pad12.Profile = sketch15
pad12.Length = 121
pad12.Reversed = True

# Sketch on XZ plane
sketch16 = body4.newObject("Sketcher::SketchObject", "Sketch015")
sketch16.AttachmentSupport = (doc.getObject("XZ_Plane003"), [""])
sketch16.MapMode = "FlatFace"
sketch16.AttachmentOffset = App.Placement(V(0, 0, 88.5), App.Rotation())
sketch16.addGeometry([
    Part.LineSegment(V(51, -43, 0), V(51, 4, 0)),
    Part.LineSegment(V(51, 4, 0), V(-1, 4, 0)),
    Part.LineSegment(V(-1, 4, 0), V(-1, -43, 0)),
    Part.LineSegment(V(-1, -43, 0), V(51, -43, 0)),
], False)
sketch16.addConstraint([
    Sketcher.Constraint("Coincident", 0, 2, 1, 1),
    Sketcher.Constraint("Coincident", 1, 2, 2, 1),
    Sketcher.Constraint("Coincident", 2, 2, 3, 1),
    Sketcher.Constraint("Coincident", 3, 2, 0, 1),
    Sketcher.Constraint("Vertical", 0),
    Sketcher.Constraint("Horizontal", 1),
    Sketcher.Constraint("Vertical", 2),
    Sketcher.Constraint("Horizontal", 3),
    Sketcher.Constraint("DistanceX", 1, 2, 1, 1, Q("52 mm")),
    Sketcher.Constraint("DistanceY", 0, 1, 0, 2, Q("47 mm")),
    Sketcher.Constraint("DistanceX", -1, 1, 0, 2, Q("51 mm")),
    Sketcher.Constraint("DistanceY", -1, 1, 0, 2, Q("4.2 mm")),
])
pocket4 = body4.newObject("PartDesign::Pocket", "Pocket003")
pocket4.Profile = sketch16
pocket4.Length = 3

# Sketch on YZ plane
sketch17 = body4.newObject("Sketcher::SketchObject", "Sketch016")
sketch17.AttachmentSupport = (doc.getObject("YZ_Plane003"), [""])
sketch17.MapMode = "FlatFace"
sketch17.AttachmentOffset = App.Placement(V(0, 0, 55), App.Rotation())
sketch17.addGeometry(Part.Circle(V(-87, 2.7, 0), V(0, 0, 1), 1), False)
sketch17.addConstraint([
    Sketcher.Constraint("Diameter", 0, Q("2 mm")),
    Sketcher.Constraint("DistanceX", 0, 3, -1, 1, Q("87 mm")),
    Sketcher.Constraint("DistanceY", -1, 1, 0, 3, Q("2.7 mm")),
])
pad13 = body4.newObject("PartDesign::Pad", "Pad012")
pad13.Profile = sketch17
pad13.Length = 58
pad13.Reversed = True

# Sketch on YZ plane
sketch18 = body4.newObject("Sketcher::SketchObject", "Sketch017")
sketch18.AttachmentSupport = (doc.getObject("YZ_Plane003"), [""])
sketch18.MapMode = "FlatFace"
sketch18.AttachmentOffset = App.Placement(V(0, 0, 48), App.Rotation())
sketch18.addGeometry(Part.Circle(V(-87, 2.7, 0), V(0, 0, 1), 1), False)
sketch18.addConstraint([
    Sketcher.Constraint("Diameter", 0, Q("2 mm")),
    Sketcher.Constraint("DistanceX", 0, 3, -1, 1, Q("87 mm")),
    Sketcher.Constraint("DistanceY", -1, 1, 0, 3, Q("2.7 mm")),
])
pocket5 = body4.newObject("PartDesign::Pocket", "Pocket004")
pocket5.Profile = sketch18
pocket5.Length = 46

# Sketch on YZ plane
sketch19 = body4.newObject("Sketcher::SketchObject", "Sketch018")
sketch19.AttachmentSupport = (doc.getObject("YZ_Plane003"), [""])
sketch19.MapMode = "FlatFace"
sketch19.AttachmentOffset = App.Placement(V(0, 0, 55), App.Rotation())
sketch19.addGeometry(Part.Circle(V(-87, -41.3, 0), V(0, 0, 1), 1), False)
sketch19.addConstraint([
    Sketcher.Constraint("Diameter", 0, Q("2 mm")),
    Sketcher.Constraint("DistanceX", 0, 3, -1, 1, Q("87 mm")),
    Sketcher.Constraint("DistanceY", 0, 3, -1, 1, Q("41.3 mm")),
])
pocket6 = body4.newObject("PartDesign::Pocket", "Pocket005")
pocket6.Profile = sketch19
pocket6.Length = 100

# Sketch on YZ plane
sketch20 = body4.newObject("Sketcher::SketchObject", "Sketch019")
sketch20.AttachmentSupport = (doc.getObject("YZ_Plane003"), [""])
sketch20.MapMode = "FlatFace"
sketch20.AttachmentOffset = App.Placement(V(0, 0, 55), App.Rotation())
sketch20.addGeometry([
    Part.LineSegment(V(3, 2, 0), V(-54, 2, 0)),
    Part.LineSegment(V(-54, 2, 0), V(-54, -9, 0)),
    Part.LineSegment(V(-54, -9, 0), V(3, -9, 0)),
    Part.LineSegment(V(3, -9, 0), V(3, 2, 0)),
], False)
sketch20.addConstraint([
    Sketcher.Constraint("Coincident", 0, 2, 1, 1),
    Sketcher.Constraint("Coincident", 1, 2, 2, 1),
    Sketcher.Constraint("Coincident", 2, 2, 3, 1),
    Sketcher.Constraint("Coincident", 3, 2, 0, 1),
    Sketcher.Constraint("Horizontal", 0),
    Sketcher.Constraint("Vertical", 1),
    Sketcher.Constraint("Horizontal", 2),
    Sketcher.Constraint("Vertical", 3),
    Sketcher.Constraint("DistanceX", 0, 2, 0, 1, Q("57.029921 mm")),
    Sketcher.Constraint("DistanceY", 1, 2, 1, 1, Q("11.072615 mm")),
    Sketcher.Constraint("DistanceY", 1, 2, -1, 1, Q("8.624329 mm")),
    Sketcher.Constraint("DistanceX", -1, 1, 2, 2, Q("3.288749 mm")),
])
pocket7 = body4.newObject("PartDesign::Pocket", "Pocket006")
pocket7.Profile = sketch20
pocket7.Length = 3

# Sketch on XY plane
sketch21 = body4.newObject("Sketcher::SketchObject", "Sketch020")
sketch21.AttachmentSupport = (doc.getObject("XY_Plane003"), [""])
sketch21.MapMode = "FlatFace"
sketch21.AttachmentOffset = App.Placement(V(0, 0, 8.2), App.Rotation())
sketch21.addGeometry([
    Part.LineSegment(V(-2, 34, 0), V(-2, -86, 0)),
    Part.LineSegment(V(-2, -86, 0), V(55, -86, 0)),
    Part.LineSegment(V(55, -86, 0), V(55, 34, 0)),
    Part.LineSegment(V(55, 34, 0), V(-2, 34, 0)),
], False)
sketch21.addConstraint([
    Sketcher.Constraint("Coincident", 0, 2, 1, 1),
    Sketcher.Constraint("Coincident", 1, 2, 2, 1),
    Sketcher.Constraint("Coincident", 2, 2, 3, 1),
    Sketcher.Constraint("Coincident", 3, 2, 0, 1),
    Sketcher.Constraint("Vertical", 0),
    Sketcher.Constraint("Horizontal", 1),
    Sketcher.Constraint("Vertical", 2),
    Sketcher.Constraint("Horizontal", 3),
    Sketcher.Constraint("DistanceX", 1, 1, 1, 2, Q("57 mm")),
    Sketcher.Constraint("DistanceY", 0, 2, 0, 1, Q("120 mm")),
    Sketcher.Constraint("DistanceX", 0, 2, -1, 1, Q("2 mm")),
    Sketcher.Constraint("DistanceY", 0, 2, -1, 1, Q("85.5 mm")),
])
pocket8 = body4.newObject("PartDesign::Pocket", "Pocket007")
pocket8.Profile = sketch21
pocket8.Length = 3

# Sketch on XZ plane
sketch22 = body4.newObject("Sketcher::SketchObject", "Sketch021")
sketch22.AttachmentSupport = (doc.getObject("XZ_Plane003"), [""])
sketch22.MapMode = "FlatFace"
sketch22.AttachmentOffset = App.Placement(V(0, 0, -34.5), App.Rotation())
sketch22.addGeometry(Part.Circle(V(0, 6.7, 0), V(0, 0, 1), 0.8), False)
sketch22.addConstraint([
    Sketcher.Constraint("PointOnObject", 0, 3, -2),
    Sketcher.Constraint("Diameter", 0, Q("1.5 mm")),
    Sketcher.Constraint("DistanceY", -1, 1, 0, 3, Q("6.7 mm")),
])
pad14 = body4.newObject("PartDesign::Pad", "Pad013")
pad14.Profile = sketch22
pad14.Length = 3

# Sketch on XZ plane
sketch23 = body4.newObject("Sketcher::SketchObject", "Sketch022")
sketch23.AttachmentSupport = (doc.getObject("XZ_Plane003"), [""])
sketch23.MapMode = "FlatFace"
sketch23.AttachmentOffset = App.Placement(V(0, 0, 85.5), App.Rotation())
sketch23.addGeometry(Part.Circle(V(0, 6.7, 0), V(0, 0, 1), 0.8), False)
sketch23.addConstraint([
    Sketcher.Constraint("PointOnObject", 0, 3, -2),
    Sketcher.Constraint("Diameter", 0, Q("1.5 mm")),
    Sketcher.Constraint("DistanceY", -1, 1, 0, 3, Q("6.7 mm")),
])
pad15 = body4.newObject("PartDesign::Pad", "Pad014")
pad15.Profile = sketch23
pad15.Length = 3
pad15.Reversed = True

# Sketch on XY plane
sketch24 = body4.newObject("Sketcher::SketchObject", "Sketch023")
sketch24.AttachmentSupport = (doc.getObject("XY_Plane003"), [""])
sketch24.MapMode = "FlatFace"
sketch24.AttachmentOffset = App.Placement(V(0, 0, 5.2), App.Rotation())
sketch24.addGeometry([
    Part.Circle(V(53.5, 33, 0), V(0, 0, 1), 0.5),
    Part.Circle(V(53.5, -84, 0), V(0, 0, 1), 0.5),
], False)
sketch24.addConstraint([
    Sketcher.Constraint("Equal", 0, 1),
    Sketcher.Constraint("Vertical", 0, 3, 1, 3),
    Sketcher.Constraint("Diameter", 0, Q("1 mm")),
    Sketcher.Constraint("DistanceY", -1, 1, 0, 3, Q("33 mm")),
    Sketcher.Constraint("DistanceY", 1, 3, -1, 1, Q("84 mm")),
    Sketcher.Constraint("DistanceX", -1, 1, 0, 3, Q("53.5 mm")),
])
pocket9 = body4.newObject("PartDesign::Pocket", "Pocket008")
pocket9.Profile = sketch24
pocket9.Length = 1

# Sketch on XZ plane
sketch25 = body4.newObject("Sketcher::SketchObject", "Sketch024")
sketch25.AttachmentSupport = (doc.getObject("XZ_Plane003"), [""])
sketch25.MapMode = "FlatFace"
sketch25.AttachmentOffset = App.Placement(V(0, 0, -34.5), App.Rotation())
sketch25.addGeometry([
    Part.LineSegment(V(34, -40, 0), V(34, -35, 0)),  # 0
    Part.LineSegment(V(34, -35, 0), V(14, -35, 0)),  # 1
    Part.LineSegment(V(14, -35, 0), V(14, -40, 0)),  # 2
    Part.LineSegment(V(14, -40, 0), V(34, -40, 0)),  # 3
    Part.LineSegment(V(34, -21, 0), V(34, -16, 0)),  # 4
    Part.LineSegment(V(34, -16, 0), V(14, -16, 0)),  # 5
    Part.LineSegment(V(14, -16, 0), V(14, -21, 0)),  # 6
    Part.LineSegment(V(14, -21, 0), V(34, -21, 0)),  # 7
], False)
sketch25.addConstraint([
    Sketcher.Constraint("Coincident", 0, 2, 1, 1),
    Sketcher.Constraint("Coincident", 1, 2, 2, 1),
    Sketcher.Constraint("Coincident", 2, 2, 3, 1),
    Sketcher.Constraint("Coincident", 3, 2, 0, 1),
    Sketcher.Constraint("Coincident", 4, 2, 5, 1),
    Sketcher.Constraint("Coincident", 5, 2, 6, 1),
    Sketcher.Constraint("Coincident", 6, 2, 7, 1),
    Sketcher.Constraint("Coincident", 7, 2, 4, 1),
    Sketcher.Constraint("Vertical", 0),
    Sketcher.Constraint("Horizontal", 1),
    Sketcher.Constraint("Vertical", 2),
    Sketcher.Constraint("Horizontal", 3),
    Sketcher.Constraint("Vertical", 4),
    Sketcher.Constraint("Horizontal", 5),
    Sketcher.Constraint("Vertical", 6),
    Sketcher.Constraint("Horizontal", 7),
    Sketcher.Constraint("Vertical", 3, 2, 4, 2),
    Sketcher.Constraint("Vertical", 2, 2, 5, 2),
    Sketcher.Constraint("Equal", 2, 4),
    Sketcher.Constraint("DistanceX", 1, 2, 1, 1, Q("20 mm")),
    Sketcher.Constraint("DistanceY", 0, 1, 0, 2, Q("5 mm")),
    Sketcher.Constraint("DistanceX", -1, 1, 0, 2, Q("34.5 mm")),
    Sketcher.Constraint("DistanceY", 0, 2, -1, 1, Q("35.3 mm")),
    Sketcher.Constraint("DistanceY", 4, 2, -1, 1, Q("15.8 mm")),
])
pad16 = body4.newObject("PartDesign::Pad", "Pad015")
pad16.Profile = sketch25
pad16.Length = 6

doc.recompute()
